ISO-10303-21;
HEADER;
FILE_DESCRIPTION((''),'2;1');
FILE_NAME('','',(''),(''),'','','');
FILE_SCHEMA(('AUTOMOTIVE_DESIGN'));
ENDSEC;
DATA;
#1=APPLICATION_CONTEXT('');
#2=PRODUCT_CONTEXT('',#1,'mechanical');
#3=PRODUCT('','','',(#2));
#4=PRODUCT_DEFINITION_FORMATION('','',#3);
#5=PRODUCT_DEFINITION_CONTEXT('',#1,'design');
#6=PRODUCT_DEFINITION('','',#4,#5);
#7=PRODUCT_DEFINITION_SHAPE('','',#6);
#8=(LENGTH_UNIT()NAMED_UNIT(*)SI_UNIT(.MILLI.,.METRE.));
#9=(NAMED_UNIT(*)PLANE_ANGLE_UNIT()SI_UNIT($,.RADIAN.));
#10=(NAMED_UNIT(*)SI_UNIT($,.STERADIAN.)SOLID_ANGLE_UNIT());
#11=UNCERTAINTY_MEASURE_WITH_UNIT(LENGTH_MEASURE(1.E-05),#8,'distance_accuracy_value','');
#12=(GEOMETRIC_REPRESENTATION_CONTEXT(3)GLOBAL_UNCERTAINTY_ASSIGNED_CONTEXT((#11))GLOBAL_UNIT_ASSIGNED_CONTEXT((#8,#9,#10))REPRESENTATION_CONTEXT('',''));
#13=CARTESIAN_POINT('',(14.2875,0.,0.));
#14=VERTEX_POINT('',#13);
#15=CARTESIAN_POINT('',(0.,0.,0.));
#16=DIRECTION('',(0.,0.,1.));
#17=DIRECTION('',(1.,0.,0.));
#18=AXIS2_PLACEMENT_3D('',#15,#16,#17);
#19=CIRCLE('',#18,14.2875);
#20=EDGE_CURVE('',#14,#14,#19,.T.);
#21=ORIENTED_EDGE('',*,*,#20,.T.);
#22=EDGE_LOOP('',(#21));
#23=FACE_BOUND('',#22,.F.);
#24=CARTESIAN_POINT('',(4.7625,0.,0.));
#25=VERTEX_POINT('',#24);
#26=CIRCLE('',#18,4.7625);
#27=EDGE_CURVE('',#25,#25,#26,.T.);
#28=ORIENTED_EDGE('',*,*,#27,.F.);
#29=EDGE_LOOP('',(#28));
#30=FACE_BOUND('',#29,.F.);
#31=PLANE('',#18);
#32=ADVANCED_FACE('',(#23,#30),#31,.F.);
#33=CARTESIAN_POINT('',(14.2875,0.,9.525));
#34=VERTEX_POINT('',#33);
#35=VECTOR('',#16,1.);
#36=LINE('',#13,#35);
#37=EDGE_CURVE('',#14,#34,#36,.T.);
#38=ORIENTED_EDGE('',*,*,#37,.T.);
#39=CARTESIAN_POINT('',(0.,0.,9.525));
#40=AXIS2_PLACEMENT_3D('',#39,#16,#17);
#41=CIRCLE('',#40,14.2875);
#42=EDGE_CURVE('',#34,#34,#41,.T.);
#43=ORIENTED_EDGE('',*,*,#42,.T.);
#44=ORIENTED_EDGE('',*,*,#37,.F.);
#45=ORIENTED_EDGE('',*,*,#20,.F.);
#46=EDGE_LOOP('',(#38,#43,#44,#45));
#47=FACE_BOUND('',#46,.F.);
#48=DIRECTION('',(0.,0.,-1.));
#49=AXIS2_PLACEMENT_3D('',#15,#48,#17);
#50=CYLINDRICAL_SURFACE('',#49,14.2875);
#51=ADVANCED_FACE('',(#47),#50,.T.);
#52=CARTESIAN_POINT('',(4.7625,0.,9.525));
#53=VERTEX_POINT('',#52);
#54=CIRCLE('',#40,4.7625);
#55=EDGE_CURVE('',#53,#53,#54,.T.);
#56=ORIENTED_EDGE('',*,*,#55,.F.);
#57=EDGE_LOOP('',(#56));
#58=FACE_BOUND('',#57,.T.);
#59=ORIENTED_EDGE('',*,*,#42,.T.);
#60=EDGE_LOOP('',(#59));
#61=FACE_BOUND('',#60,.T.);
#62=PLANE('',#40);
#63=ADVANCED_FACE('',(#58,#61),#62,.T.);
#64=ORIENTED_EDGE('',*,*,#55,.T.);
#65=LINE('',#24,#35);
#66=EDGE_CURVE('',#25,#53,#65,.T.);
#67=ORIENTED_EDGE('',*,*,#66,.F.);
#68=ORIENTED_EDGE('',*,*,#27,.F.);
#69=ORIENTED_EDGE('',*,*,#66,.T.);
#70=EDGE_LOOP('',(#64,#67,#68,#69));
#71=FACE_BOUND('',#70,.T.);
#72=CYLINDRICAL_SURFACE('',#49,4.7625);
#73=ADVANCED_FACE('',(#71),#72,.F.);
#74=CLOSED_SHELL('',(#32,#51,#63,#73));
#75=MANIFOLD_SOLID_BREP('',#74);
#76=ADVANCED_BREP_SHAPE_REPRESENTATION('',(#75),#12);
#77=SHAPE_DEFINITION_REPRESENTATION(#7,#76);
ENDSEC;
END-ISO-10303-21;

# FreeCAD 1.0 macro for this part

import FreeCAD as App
import Part
import Sketcher
from FreeCAD import Vector
Q = App.Units.Quantity

doc = App.newDocument("Part")
body = doc.addObject("PartDesign::Body", "Body")

# Sketch on XY plane
sketch1 = body.newObject("Sketcher::SketchObject", "Sketch")
sketch1.AttachmentSupport = (doc.getObject("XY_Plane"), [""])
sketch1.MapMode = "FlatFace"
sketch1.addGeometry(Part.Circle(Vector(0, 0, 0), Vector(0, 0, 1), 14.3), False)
sketch1.addGeometry(Part.Circle(Vector(0, 0, 0), Vector(0, 0, 1), 4.8), False)
sketch1.addConstraint(Sketcher.Constraint("Coincident", 0, 3, -1, 1))
sketch1.addConstraint(Sketcher.Constraint("Coincident", 1, 3, -1, 1))
sketch1.addConstraint(Sketcher.Constraint("Diameter", 0, Q("1.125 in")))
sketch1.addConstraint(Sketcher.Constraint("Diameter", 1, Q("0.375 in")))
pad1 = body.newObject("PartDesign::Pad", "Pad")
pad1.Profile = sketch1
pad1.Length = Q("0.375 in")

doc.recompute()
